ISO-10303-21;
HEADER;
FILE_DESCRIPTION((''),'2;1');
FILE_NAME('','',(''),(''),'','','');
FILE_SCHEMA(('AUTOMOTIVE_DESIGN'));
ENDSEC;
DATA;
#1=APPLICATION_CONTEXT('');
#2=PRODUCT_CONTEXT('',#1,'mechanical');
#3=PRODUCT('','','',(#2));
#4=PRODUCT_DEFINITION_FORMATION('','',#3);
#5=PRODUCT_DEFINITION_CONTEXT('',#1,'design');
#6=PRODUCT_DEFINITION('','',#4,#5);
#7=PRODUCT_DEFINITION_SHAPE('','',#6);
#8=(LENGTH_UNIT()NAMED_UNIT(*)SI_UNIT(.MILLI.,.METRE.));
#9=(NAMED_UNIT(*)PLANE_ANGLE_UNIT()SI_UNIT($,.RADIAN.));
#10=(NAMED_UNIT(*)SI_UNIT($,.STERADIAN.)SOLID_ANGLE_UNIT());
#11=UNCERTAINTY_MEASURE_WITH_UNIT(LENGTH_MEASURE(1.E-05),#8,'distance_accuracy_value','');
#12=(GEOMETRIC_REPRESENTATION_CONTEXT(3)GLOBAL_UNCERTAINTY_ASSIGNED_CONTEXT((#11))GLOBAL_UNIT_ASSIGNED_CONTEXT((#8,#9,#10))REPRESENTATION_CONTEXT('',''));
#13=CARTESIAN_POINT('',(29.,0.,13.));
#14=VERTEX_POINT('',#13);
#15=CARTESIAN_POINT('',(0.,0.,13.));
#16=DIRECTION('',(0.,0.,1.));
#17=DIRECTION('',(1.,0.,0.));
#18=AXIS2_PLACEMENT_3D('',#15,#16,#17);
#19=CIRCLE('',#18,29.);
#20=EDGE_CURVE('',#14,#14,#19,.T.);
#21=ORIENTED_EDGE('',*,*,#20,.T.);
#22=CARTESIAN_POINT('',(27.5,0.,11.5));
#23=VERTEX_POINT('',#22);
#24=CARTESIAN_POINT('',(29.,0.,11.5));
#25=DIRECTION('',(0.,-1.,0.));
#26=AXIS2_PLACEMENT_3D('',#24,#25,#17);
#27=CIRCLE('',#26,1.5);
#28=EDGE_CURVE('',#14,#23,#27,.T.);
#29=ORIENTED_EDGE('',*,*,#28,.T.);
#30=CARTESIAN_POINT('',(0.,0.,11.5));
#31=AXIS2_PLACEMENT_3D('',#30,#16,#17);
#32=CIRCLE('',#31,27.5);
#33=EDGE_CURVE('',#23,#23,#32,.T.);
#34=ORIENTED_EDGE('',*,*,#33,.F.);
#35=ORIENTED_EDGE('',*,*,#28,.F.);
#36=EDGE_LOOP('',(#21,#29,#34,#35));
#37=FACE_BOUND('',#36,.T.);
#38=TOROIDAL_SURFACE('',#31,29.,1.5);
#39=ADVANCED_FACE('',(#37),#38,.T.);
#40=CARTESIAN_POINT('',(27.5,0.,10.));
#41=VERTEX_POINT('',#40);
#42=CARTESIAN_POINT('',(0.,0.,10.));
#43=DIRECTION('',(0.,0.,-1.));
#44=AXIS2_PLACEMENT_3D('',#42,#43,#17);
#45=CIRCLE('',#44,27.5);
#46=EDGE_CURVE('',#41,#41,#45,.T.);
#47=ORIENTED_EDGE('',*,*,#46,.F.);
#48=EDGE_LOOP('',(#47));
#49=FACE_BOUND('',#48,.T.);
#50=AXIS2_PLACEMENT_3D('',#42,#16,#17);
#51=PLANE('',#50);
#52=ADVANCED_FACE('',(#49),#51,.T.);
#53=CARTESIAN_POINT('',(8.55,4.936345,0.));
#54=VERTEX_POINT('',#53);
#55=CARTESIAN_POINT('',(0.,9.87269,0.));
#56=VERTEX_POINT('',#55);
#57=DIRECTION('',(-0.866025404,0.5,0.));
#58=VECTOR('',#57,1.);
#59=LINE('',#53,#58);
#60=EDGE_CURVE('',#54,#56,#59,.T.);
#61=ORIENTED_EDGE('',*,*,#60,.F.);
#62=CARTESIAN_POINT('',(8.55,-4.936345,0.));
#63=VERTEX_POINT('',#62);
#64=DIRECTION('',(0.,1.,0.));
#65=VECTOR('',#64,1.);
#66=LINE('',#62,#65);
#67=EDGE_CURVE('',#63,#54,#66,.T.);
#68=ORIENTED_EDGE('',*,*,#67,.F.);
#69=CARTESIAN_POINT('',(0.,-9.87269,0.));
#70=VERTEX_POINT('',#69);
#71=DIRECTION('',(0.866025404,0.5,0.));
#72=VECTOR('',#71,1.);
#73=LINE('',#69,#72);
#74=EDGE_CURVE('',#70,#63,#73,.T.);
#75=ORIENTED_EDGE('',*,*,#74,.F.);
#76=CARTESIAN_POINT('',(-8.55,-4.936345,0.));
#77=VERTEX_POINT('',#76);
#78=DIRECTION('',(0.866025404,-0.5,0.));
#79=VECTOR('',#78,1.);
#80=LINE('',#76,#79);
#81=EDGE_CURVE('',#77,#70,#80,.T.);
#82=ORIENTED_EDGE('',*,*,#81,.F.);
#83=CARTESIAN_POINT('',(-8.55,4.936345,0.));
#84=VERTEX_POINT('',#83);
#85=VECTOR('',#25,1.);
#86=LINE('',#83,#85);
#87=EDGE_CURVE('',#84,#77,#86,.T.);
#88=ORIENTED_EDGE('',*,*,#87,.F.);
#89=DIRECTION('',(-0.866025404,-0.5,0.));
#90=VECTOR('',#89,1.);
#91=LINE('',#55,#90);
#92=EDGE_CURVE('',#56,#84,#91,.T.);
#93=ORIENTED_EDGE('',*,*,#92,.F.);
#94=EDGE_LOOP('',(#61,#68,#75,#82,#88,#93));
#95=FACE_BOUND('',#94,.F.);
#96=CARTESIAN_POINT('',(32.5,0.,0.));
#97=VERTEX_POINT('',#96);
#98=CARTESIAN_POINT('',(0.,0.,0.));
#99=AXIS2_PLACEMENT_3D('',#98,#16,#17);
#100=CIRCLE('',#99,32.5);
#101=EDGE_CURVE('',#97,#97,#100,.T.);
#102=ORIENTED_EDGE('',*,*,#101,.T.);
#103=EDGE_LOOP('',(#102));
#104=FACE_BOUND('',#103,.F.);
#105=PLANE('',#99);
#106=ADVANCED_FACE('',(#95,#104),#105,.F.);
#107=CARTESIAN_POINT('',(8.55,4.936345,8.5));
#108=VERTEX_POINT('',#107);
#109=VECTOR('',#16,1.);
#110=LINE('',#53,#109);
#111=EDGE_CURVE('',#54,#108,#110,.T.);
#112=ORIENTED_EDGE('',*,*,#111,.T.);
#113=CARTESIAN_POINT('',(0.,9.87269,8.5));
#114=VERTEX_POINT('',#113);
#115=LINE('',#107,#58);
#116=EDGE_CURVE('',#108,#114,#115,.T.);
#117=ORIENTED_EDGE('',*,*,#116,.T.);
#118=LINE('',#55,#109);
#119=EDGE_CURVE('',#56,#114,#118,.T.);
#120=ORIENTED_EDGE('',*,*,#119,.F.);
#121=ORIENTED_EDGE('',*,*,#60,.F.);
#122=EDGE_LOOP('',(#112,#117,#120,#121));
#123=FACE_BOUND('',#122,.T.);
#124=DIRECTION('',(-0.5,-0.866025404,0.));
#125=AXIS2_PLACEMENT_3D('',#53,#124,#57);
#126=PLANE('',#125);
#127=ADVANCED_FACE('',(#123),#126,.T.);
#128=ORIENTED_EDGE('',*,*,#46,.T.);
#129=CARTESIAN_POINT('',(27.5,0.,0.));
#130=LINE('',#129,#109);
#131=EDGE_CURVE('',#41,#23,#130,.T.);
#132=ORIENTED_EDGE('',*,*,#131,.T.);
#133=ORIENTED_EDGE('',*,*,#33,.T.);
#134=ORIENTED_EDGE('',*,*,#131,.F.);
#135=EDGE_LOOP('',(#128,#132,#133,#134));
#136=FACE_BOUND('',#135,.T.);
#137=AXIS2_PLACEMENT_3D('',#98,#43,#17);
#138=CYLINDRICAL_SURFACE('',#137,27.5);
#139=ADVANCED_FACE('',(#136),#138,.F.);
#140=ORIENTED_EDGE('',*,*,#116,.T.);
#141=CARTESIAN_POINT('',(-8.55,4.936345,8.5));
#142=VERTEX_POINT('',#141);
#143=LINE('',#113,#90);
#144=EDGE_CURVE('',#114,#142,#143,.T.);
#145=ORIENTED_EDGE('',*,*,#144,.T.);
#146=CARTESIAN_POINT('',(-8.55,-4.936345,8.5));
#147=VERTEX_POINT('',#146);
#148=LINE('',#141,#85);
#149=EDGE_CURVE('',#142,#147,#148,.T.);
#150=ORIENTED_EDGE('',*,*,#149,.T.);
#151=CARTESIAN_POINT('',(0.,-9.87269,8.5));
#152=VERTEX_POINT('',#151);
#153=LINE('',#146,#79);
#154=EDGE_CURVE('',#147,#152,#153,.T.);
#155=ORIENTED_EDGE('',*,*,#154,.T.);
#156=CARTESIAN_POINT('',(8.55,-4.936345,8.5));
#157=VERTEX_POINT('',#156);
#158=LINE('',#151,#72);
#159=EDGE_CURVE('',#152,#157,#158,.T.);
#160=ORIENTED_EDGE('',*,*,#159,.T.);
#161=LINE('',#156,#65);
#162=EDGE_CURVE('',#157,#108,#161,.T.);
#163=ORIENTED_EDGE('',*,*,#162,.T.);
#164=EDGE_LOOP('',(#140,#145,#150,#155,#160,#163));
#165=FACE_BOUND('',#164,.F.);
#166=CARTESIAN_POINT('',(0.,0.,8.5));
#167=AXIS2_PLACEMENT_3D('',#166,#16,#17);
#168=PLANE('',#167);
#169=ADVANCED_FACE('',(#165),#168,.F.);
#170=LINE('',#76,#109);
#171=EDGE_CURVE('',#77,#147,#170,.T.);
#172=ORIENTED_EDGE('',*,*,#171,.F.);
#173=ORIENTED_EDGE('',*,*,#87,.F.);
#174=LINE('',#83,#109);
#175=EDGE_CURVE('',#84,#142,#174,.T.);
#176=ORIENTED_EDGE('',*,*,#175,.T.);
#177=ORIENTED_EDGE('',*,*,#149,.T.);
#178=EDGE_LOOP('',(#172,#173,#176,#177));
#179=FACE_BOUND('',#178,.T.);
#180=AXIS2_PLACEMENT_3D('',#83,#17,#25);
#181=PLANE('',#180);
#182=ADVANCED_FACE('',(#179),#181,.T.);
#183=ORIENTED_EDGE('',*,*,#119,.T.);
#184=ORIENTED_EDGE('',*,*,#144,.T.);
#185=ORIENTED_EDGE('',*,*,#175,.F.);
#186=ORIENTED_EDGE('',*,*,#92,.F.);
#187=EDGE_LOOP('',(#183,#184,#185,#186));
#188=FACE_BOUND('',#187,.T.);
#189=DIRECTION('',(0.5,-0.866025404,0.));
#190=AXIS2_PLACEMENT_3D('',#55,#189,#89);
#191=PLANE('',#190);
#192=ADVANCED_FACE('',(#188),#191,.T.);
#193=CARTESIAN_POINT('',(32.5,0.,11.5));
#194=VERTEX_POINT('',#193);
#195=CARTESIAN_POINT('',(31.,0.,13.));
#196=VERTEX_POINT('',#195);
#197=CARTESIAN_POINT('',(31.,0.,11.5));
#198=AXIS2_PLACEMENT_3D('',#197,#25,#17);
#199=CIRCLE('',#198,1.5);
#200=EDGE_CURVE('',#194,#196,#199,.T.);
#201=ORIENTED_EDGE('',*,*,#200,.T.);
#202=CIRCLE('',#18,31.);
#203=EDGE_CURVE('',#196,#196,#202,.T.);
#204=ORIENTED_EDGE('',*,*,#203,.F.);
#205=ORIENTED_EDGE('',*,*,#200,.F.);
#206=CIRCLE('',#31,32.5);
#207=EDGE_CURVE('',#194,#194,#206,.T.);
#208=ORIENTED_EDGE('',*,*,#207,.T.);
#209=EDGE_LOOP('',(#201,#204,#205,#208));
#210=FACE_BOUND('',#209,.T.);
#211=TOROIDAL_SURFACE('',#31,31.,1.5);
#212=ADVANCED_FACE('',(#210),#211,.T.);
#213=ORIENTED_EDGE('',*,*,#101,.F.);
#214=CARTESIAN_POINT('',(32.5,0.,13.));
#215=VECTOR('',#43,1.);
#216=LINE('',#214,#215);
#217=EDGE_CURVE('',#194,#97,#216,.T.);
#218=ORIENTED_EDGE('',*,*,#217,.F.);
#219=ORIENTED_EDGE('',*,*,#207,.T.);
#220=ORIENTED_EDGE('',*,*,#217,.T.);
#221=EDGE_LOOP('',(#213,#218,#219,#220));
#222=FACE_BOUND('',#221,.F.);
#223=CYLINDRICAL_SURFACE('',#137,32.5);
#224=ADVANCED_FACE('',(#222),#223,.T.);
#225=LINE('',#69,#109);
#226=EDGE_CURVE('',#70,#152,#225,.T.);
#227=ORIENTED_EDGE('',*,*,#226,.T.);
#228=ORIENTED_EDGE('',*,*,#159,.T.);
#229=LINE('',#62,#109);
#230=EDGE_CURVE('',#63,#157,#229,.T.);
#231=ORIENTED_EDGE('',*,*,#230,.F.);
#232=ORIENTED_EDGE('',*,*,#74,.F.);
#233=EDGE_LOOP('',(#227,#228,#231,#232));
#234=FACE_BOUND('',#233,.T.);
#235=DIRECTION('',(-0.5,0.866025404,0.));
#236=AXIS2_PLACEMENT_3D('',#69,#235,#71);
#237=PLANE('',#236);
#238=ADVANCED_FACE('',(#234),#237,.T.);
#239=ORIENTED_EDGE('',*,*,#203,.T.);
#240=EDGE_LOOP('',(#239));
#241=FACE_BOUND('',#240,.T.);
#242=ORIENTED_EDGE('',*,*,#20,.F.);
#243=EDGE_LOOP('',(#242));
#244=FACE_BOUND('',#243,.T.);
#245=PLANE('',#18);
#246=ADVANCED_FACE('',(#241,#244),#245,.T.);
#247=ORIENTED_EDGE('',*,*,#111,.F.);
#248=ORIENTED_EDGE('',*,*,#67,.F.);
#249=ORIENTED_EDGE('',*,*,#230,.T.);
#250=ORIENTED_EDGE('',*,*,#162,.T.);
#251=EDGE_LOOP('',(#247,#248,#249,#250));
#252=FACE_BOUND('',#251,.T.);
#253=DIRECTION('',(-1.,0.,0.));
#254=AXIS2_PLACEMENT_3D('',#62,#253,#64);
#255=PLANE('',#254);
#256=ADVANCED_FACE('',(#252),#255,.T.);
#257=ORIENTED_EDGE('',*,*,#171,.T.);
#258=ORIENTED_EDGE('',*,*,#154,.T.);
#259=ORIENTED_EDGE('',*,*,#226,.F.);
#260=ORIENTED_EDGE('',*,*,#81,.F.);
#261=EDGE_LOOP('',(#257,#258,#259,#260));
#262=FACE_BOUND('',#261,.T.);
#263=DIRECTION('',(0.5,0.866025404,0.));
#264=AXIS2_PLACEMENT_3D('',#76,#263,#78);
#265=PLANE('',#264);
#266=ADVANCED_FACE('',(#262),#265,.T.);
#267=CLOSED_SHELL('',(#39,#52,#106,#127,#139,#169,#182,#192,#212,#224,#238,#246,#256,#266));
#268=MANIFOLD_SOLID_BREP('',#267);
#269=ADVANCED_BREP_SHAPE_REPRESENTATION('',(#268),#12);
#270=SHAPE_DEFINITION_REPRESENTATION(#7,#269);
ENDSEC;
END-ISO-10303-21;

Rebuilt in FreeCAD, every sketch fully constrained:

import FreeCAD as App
import Part
import Sketcher
Q = App.Units.Quantity


def edges_at(feature, points):
    """Names of the edges that pass closest to the given points."""
    edges = feature.Shape.Edges
    near = lambda p: min(range(len(edges)), key=lambda i: edges[i].distToShape(Part.Vertex(*p))[0])
    return sorted({f"Edge{near(p) + 1}" for p in points})

doc = App.newDocument("Part")
body = doc.addObject("PartDesign::Body", "Body")

# Sketch on XY plane
sketch1 = doc.addObject("Sketcher::SketchObject", "Sketch")
body.addObject(sketch1)
sketch1.AttachmentSupport = (doc.XY_Plane, [""])
sketch1.MapMode = "FlatFace"
sketch1.addGeometry(Part.Circle(App.Vector(0, 0, 0), App.Vector(0, 0, 1), 32), False)
sketch1.addConstraint(Sketcher.Constraint("Coincident", 0, 3, -1, 1))
sketch1.addConstraint(Sketcher.Constraint("Diameter", 0, 65.0))
pad1 = doc.addObject("PartDesign::Pad", "Pad")
body.addObject(pad1)
pad1.Profile = sketch1
pad1.Length = 10

# Sketch on XY plane
sketch2 = doc.addObject("Sketcher::SketchObject", "Sketch001")
body.addObject(sketch2)
sketch2.AttachmentSupport = (doc.XY_Plane, [""])
sketch2.MapMode = "FlatFace"
sketch2.addGeometry(Part.LineSegment(App.Vector(9, 5, 0), App.Vector(0, 10, 0)), False)
sketch2.addGeometry(Part.LineSegment(App.Vector(0, 10, 0), App.Vector(-9, 5, 0)), False)
sketch2.addGeometry(Part.LineSegment(App.Vector(-9, 5, 0), App.Vector(-9, -5, 0)), False)
sketch2.addGeometry(Part.LineSegment(App.Vector(-9, -5, 0), App.Vector(0, -10, 0)), False)
sketch2.addGeometry(Part.LineSegment(App.Vector(0, -10, 0), App.Vector(9, -5, 0)), False)
sketch2.addGeometry(Part.LineSegment(App.Vector(9, -5, 0), App.Vector(9, 5, 0)), False)
sketch2.addConstraint(Sketcher.Constraint("Coincident", 0, 2, 1, 1))
sketch2.addConstraint(Sketcher.Constraint("Coincident", 1, 2, 2, 1))
sketch2.addConstraint(Sketcher.Constraint("Coincident", 2, 2, 3, 1))
sketch2.addConstraint(Sketcher.Constraint("Coincident", 3, 2, 4, 1))
sketch2.addConstraint(Sketcher.Constraint("Coincident", 4, 2, 5, 1))
sketch2.addConstraint(Sketcher.Constraint("Coincident", 5, 2, 0, 1))
sketch2.addConstraint(Sketcher.Constraint("Vertical", 2))
sketch2.addConstraint(Sketcher.Constraint("Vertical", 5))
sketch2.addConstraint(Sketcher.Constraint("Symmetric", 0, 2, 3, 2, -1, 1))
sketch2.addConstraint(Sketcher.Constraint("Symmetric", 1, 2, 4, 2, -1, 1))
sketch2.addConstraint(Sketcher.Constraint("PointOnObject", 0, 2, -2))
sketch2.addConstraint(Sketcher.Constraint("Parallel", 0, 3))
sketch2.addConstraint(Sketcher.Constraint("Horizontal", 2, 2, 4, 2))
sketch2.addConstraint(Sketcher.Constraint("Angle", 0, Q("150 deg")))
sketch2.addConstraint(Sketcher.Constraint("DistanceX", 2, 2, 4, 2, 17.1))
sketch2.addConstraint(Sketcher.Constraint("DistanceY", 2, 2, 2, 1, 9.87269))
pocket1 = doc.addObject("PartDesign::Pocket", "Pocket")
body.addObject(pocket1)
pocket1.Profile = sketch2
pocket1.Length = 8.5
pocket1.Reversed = True

# Sketch on XY plane
sketch3 = doc.addObject("Sketcher::SketchObject", "Sketch002")
body.addObject(sketch3)
sketch3.AttachmentSupport = (doc.XY_Plane, [""])
sketch3.MapMode = "FlatFace"
sketch3.addGeometry(Part.Circle(App.Vector(0, 0, 0), App.Vector(0, 0, 1), 32), False)
sketch3.addGeometry(Part.Circle(App.Vector(0, 0, 0), App.Vector(0, 0, 1), 28), False)
sketch3.addConstraint(Sketcher.Constraint("Coincident", 0, 3, -1, 1))
sketch3.addConstraint(Sketcher.Constraint("Coincident", 1, 3, -1, 1))
sketch3.addConstraint(Sketcher.Constraint("Diameter", 0, 65.0))
sketch3.addConstraint(Sketcher.Constraint("Diameter", 1, 55.0))
pad2 = doc.addObject("PartDesign::Pad", "Pad001")
body.addObject(pad2)
pad2.Profile = sketch3
pad2.Length = 13
doc.recompute()

fillet = doc.addObject("PartDesign::Fillet", "Fillet")
body.addObject(fillet)
fillet.Base = (pad2, edges_at(pad2, [(-32.5, 0, 13), (-27.5, 0, 13)]))
fillet.Radius = 1.5

doc.recompute()
